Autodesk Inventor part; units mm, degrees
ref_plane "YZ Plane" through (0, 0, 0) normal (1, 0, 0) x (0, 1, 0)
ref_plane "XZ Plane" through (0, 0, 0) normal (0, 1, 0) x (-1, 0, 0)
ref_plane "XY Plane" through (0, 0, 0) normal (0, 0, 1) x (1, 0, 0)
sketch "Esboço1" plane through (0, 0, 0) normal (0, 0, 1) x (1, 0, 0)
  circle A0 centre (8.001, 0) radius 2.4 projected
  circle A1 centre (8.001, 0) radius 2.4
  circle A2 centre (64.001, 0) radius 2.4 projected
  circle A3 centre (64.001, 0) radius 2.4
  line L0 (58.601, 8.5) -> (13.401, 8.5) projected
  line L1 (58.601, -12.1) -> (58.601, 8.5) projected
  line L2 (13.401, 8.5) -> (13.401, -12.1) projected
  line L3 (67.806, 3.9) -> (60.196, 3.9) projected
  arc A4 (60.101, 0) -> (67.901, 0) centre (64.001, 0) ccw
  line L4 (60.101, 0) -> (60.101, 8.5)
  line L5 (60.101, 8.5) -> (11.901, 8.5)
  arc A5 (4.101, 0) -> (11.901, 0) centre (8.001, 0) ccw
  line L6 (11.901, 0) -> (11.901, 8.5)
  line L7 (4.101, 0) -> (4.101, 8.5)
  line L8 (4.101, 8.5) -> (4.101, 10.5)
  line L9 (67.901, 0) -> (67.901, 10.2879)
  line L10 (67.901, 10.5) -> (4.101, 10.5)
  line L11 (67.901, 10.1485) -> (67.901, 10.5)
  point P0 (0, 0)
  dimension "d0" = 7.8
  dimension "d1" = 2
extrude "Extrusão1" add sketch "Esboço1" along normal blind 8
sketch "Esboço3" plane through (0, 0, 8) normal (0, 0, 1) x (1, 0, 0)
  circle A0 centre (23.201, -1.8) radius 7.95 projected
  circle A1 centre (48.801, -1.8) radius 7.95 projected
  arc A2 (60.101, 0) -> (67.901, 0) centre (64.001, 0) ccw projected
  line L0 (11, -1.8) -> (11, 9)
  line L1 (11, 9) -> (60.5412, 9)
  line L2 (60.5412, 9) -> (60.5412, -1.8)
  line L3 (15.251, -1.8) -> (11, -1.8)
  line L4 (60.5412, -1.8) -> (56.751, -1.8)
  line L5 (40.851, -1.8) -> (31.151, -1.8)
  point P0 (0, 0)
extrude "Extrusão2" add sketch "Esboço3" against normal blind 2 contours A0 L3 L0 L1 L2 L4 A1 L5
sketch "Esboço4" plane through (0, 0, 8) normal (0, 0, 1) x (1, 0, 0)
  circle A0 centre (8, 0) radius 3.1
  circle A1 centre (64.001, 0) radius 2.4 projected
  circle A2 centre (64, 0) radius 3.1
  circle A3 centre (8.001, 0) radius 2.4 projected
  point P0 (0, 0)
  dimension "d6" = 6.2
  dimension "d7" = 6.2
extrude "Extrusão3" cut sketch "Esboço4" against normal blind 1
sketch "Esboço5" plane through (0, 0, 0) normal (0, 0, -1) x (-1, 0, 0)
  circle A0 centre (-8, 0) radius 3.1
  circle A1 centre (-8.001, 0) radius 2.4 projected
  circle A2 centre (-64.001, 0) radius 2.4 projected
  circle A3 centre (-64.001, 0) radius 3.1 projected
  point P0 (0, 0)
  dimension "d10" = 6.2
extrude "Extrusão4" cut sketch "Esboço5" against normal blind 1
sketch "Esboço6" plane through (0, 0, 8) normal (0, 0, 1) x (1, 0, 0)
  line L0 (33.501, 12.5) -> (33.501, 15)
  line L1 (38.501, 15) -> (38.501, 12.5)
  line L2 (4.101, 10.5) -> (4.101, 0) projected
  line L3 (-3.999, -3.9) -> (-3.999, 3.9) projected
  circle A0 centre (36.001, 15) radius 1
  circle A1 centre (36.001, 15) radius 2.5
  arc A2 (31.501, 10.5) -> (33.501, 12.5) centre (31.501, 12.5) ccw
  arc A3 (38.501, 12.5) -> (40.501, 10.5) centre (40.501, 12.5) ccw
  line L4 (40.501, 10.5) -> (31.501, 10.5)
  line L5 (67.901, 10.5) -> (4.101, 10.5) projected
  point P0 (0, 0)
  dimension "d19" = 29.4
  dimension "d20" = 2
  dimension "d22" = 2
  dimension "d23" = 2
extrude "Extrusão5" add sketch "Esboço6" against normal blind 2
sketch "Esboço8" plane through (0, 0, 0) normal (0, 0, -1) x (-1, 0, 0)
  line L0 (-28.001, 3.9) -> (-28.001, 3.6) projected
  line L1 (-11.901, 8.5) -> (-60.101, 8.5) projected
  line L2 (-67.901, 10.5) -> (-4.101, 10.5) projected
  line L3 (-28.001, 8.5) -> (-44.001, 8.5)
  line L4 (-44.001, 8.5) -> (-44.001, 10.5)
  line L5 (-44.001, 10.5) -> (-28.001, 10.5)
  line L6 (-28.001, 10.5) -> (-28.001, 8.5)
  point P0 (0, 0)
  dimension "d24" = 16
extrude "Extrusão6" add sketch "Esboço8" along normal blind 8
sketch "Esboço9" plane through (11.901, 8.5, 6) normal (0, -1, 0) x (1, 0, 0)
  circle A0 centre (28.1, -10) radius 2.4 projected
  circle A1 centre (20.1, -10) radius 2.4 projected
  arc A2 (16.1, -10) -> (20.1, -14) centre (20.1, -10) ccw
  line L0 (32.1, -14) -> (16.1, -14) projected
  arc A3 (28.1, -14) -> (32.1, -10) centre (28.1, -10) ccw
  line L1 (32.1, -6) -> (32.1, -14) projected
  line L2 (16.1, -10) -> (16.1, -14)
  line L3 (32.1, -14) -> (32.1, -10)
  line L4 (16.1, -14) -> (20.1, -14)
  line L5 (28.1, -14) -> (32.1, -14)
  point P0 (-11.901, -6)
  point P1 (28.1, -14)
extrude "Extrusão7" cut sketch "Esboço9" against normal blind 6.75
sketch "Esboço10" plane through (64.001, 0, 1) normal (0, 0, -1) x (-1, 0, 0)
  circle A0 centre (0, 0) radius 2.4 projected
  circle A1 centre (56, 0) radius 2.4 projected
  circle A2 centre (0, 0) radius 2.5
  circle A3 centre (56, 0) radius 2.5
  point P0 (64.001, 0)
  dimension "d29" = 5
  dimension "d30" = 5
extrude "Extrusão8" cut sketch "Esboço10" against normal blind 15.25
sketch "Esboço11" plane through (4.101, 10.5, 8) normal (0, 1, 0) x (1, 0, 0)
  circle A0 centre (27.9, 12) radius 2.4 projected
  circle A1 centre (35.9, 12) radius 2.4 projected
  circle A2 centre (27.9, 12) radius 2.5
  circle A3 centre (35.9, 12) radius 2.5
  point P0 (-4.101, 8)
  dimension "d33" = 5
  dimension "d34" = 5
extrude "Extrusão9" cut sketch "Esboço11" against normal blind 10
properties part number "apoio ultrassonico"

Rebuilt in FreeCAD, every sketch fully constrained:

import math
import FreeCAD as App
import Part
import Sketcher

V = App.Vector
Q = App.Units.Quantity

doc = App.newDocument("Part")
params = doc.addObject("Spreadsheet::Sheet", "Params")
for row, (alias, value) in enumerate([
    ("sketch1_radius", "3.9 mm"),
    ("sketch1_diameter", "4.8 mm"),
    ("sketch1_width", "48.2 mm"),
    ("sketch1_height", "8.5 mm"),
    ("pad1_length", "8 mm"),
    ("sketch2_radius", "7.95 mm"),
    ("sketch2_width", "9.7 mm"),
    ("sketch2_height", "10.8 mm"),
    ("pad2_length", "2 mm"),
    ("sketch3_diameter", "6.2 mm"),
    ("sketch3_diameter2", "4.8 mm"),
    ("pocket1_length", "1 mm"),
    ("sketch4_diameter", "6.2 mm"),
    ("sketch4_diameter2", "4.8 mm"),
    ("pocket2_length", "1 mm"),
    ("sketch5_diameter", "2 mm"),
    ("sketch5_radius", "2 mm"),
    ("sketch5_radius2", "2.5 mm"),
    ("sketch5_height", "2.5 mm"),
    ("pad3_length", "2 mm"),
    ("sketch6_width", "16 mm"),
    ("sketch6_height", "2 mm"),
    ("pad4_length", "8 mm"),
    ("sketch7_radius", "4 mm"),
    ("sketch7_diameter", "4.8 mm"),
    ("pocket3_length", "6.75 mm"),
    ("sketch8_diameter", "5 mm"),
    ("sketch8_diameter2", "4.8 mm"),
    ("pocket4_length", "15.25 mm"),
    ("sketch9_diameter", "5 mm"),
    ("sketch9_diameter2", "4.8 mm"),
    ("pocket5_length", "10 mm"),
], start=1):
    params.set(f"A{row}", alias)
    params.set(f"B{row}", "=" + value)
    params.setAlias(f"B{row}", alias)

body = doc.addObject("PartDesign::Body", "Body")

# Sketch on XY plane
sketch1 = doc.addObject("Sketcher::SketchObject", "Sketch")
body.addObject(sketch1)
sketch1.AttachmentSupport = (doc.XY_Plane, [""])
sketch1.MapMode = "FlatFace"
sketch1.addGeometry(Part.LineSegment(V(11.9, 8.5, 0), V(60.1, 8.5, 0)), False)
sketch1.addGeometry(Part.LineSegment(V(60.1, 8.5, 0), V(60.1, 0, 0)), False)
sketch1.addGeometry(Part.ArcOfCircle(Part.Circle(V(64, 0, 0), V(0, 0, 1), 3.9), math.radians(180), math.radians(360)), False)
sketch1.addGeometry(Part.LineSegment(V(67.9, 0, 0), V(67.9, 10.5, 0)), False)
sketch1.addGeometry(Part.LineSegment(V(67.9, 10.5, 0), V(4.1, 10.5, 0)), False)
sketch1.addGeometry(Part.LineSegment(V(4.1, 10.5, 0), V(4.1, 0, 0)), False)
sketch1.addGeometry(Part.ArcOfCircle(Part.Circle(V(8, 0, 0), V(0, 0, 1), 3.9), math.radians(180), math.radians(360)), False)
sketch1.addGeometry(Part.LineSegment(V(11.9, 0, 0), V(11.9, 8.5, 0)), False)
sketch1.addGeometry(Part.Circle(V(8, 0, 0), V(0, 0, 1), 2.4), False)
sketch1.addGeometry(Part.Circle(V(64, 0, 0), V(0, 0, 1), 2.4), False)
sketch1.addConstraint(Sketcher.Constraint("Coincident", 0, 2, 1, 1))
sketch1.addConstraint(Sketcher.Constraint("Tangent", 1, 2, 2, 1))
sketch1.addConstraint(Sketcher.Constraint("Tangent", 2, 2, 3, 1))
sketch1.addConstraint(Sketcher.Constraint("Coincident", 3, 2, 4, 1))
sketch1.addConstraint(Sketcher.Constraint("Coincident", 4, 2, 5, 1))
sketch1.addConstraint(Sketcher.Constraint("Tangent", 5, 2, 6, 1))
sketch1.addConstraint(Sketcher.Constraint("Tangent", 6, 2, 7, 1))
sketch1.addConstraint(Sketcher.Constraint("Coincident", 7, 2, 0, 1))
sketch1.addConstraint(Sketcher.Constraint("Horizontal", 0))
sketch1.addConstraint(Sketcher.Constraint("Vertical", 1))
sketch1.addConstraint(Sketcher.Constraint("Vertical", 3))
sketch1.addConstraint(Sketcher.Constraint("Horizontal", 4))
sketch1.addConstraint(Sketcher.Constraint("Vertical", 5))
sketch1.addConstraint(Sketcher.Constraint("Vertical", 7))
sketch1.addConstraint(Sketcher.Constraint("Coincident", 8, 3, 6, 3))
sketch1.addConstraint(Sketcher.Constraint("Coincident", 9, 3, 2, 3))
sketch1.addConstraint(Sketcher.Constraint("Equal", 2, 6))
sketch1.addConstraint(Sketcher.Constraint("Equal", 8, 9))
sketch1.addConstraint(Sketcher.Constraint("PointOnObject", 2, 3, -1))
sketch1.addConstraint(Sketcher.Constraint("PointOnObject", 6, 3, -1))
sketch1.addConstraint(Sketcher.Constraint("Radius", 2, Q("3.9 mm")))
sketch1.addConstraint(Sketcher.Constraint("DistanceY", 0, 2, 3, 2, Q("2 mm")))
sketch1.addConstraint(Sketcher.Constraint("Diameter", 8, Q("4.8 mm")))
sketch1.addConstraint(Sketcher.Constraint("DistanceX", 0, 1, 0, 2, Q("48.2 mm")))
sketch1.addConstraint(Sketcher.Constraint("DistanceY", 1, 2, 1, 1, Q("8.5 mm")))
sketch1.addConstraint(Sketcher.Constraint("DistanceX", -1, 1, 2, 3, Q("64.001 mm")))
sketch1.setExpression("Constraints[20]", "Params.sketch1_radius")
sketch1.setExpression("Constraints[22]", "Params.sketch1_diameter")
sketch1.setExpression("Constraints[23]", "Params.sketch1_width")
sketch1.setExpression("Constraints[24]", "Params.sketch1_height")
pad1 = doc.addObject("PartDesign::Pad", "Pad")
body.addObject(pad1)
pad1.Profile = sketch1
pad1.setExpression("Length", "Params.pad1_length")

# Sketch on XY plane
sketch2 = doc.addObject("Sketcher::SketchObject", "Sketch001")
body.addObject(sketch2)
sketch2.AttachmentSupport = (doc.XY_Plane, [""])
sketch2.MapMode = "FlatFace"
sketch2.AttachmentOffset = App.Placement(V(0, 0, 8), App.Rotation())
sketch2.addGeometry(Part.ArcOfCircle(Part.Circle(V(23.2, -1.8, 0), V(0, 0, 1), 8), math.radians(0), math.radians(180)), False)
sketch2.addGeometry(Part.LineSegment(V(31.2, -1.8, 0), V(40.9, -1.8, 0)), False)
sketch2.addGeometry(Part.ArcOfCircle(Part.Circle(V(48.8, -1.8, 0), V(0, 0, 1), 8), math.radians(0), math.radians(180)), False)
sketch2.addGeometry(Part.LineSegment(V(56.8, -1.8, 0), V(60.5, -1.8, 0)), False)
sketch2.addGeometry(Part.LineSegment(V(60.5, -1.8, 0), V(60.5, 9, 0)), False)
sketch2.addGeometry(Part.LineSegment(V(60.5, 9, 0), V(11, 9, 0)), False)
sketch2.addGeometry(Part.LineSegment(V(11, 9, 0), V(11, -1.8, 0)), False)
sketch2.addGeometry(Part.LineSegment(V(11, -1.8, 0), V(15.3, -1.8, 0)), False)
sketch2.addConstraint(Sketcher.Constraint("Coincident", 0, 1, 1, 1))
sketch2.addConstraint(Sketcher.Constraint("Coincident", 1, 2, 2, 2))
sketch2.addConstraint(Sketcher.Constraint("Coincident", 2, 1, 3, 1))
sketch2.addConstraint(Sketcher.Constraint("Coincident", 3, 2, 4, 1))
sketch2.addConstraint(Sketcher.Constraint("Coincident", 4, 2, 5, 1))
sketch2.addConstraint(Sketcher.Constraint("Coincident", 5, 2, 6, 1))
sketch2.addConstraint(Sketcher.Constraint("Coincident", 6, 2, 7, 1))
sketch2.addConstraint(Sketcher.Constraint("Coincident", 7, 2, 0, 2))
sketch2.addConstraint(Sketcher.Constraint("Horizontal", 1))
sketch2.addConstraint(Sketcher.Constraint("Horizontal", 3))
sketch2.addConstraint(Sketcher.Constraint("Vertical", 4))
sketch2.addConstraint(Sketcher.Constraint("Horizontal", 5))
sketch2.addConstraint(Sketcher.Constraint("Vertical", 6))
sketch2.addConstraint(Sketcher.Constraint("Horizontal", 7))
sketch2.addConstraint(Sketcher.Constraint("Equal", 0, 2))
sketch2.addConstraint(Sketcher.Constraint("Horizontal", 0, 3, 2, 3))
sketch2.addConstraint(Sketcher.Constraint("Horizontal", 2, 3, 0, 1))
sketch2.addConstraint(Sketcher.Constraint("Horizontal", 1, 2, 2, 1))
sketch2.addConstraint(Sketcher.Constraint("Horizontal", 3, 2, 6, 2))
sketch2.addConstraint(Sketcher.Constraint("Radius", 0, Q("7.95 mm")))
sketch2.addConstraint(Sketcher.Constraint("DistanceX", 1, 1, 1, 2, Q("9.7 mm")))
sketch2.addConstraint(Sketcher.Constraint("DistanceY", 4, 1, 4, 2, Q("10.8 mm")))
sketch2.addConstraint(Sketcher.Constraint("DistanceY", -1, 1, 4, 2, Q("9 mm")))
sketch2.addConstraint(Sketcher.Constraint("DistanceX", -1, 1, 5, 2, Q("11 mm")))
sketch2.addConstraint(Sketcher.Constraint("DistanceX", 7, 1, 7, 2, Q("4.251 mm")))
sketch2.addConstraint(Sketcher.Constraint("DistanceX", 3, 1, 3, 2, Q("3.7902 mm")))
sketch2.setExpression("Constraints[19]", "Params.sketch2_radius")
sketch2.setExpression("Constraints[20]", "Params.sketch2_width")
sketch2.setExpression("Constraints[21]", "Params.sketch2_height")
pad2 = doc.addObject("PartDesign::Pad", "Pad001")
body.addObject(pad2)
pad2.Profile = sketch2
pad2.setExpression("Length", "Params.pad2_length")
pad2.Reversed = True

# Sketch on XY plane
sketch3 = doc.addObject("Sketcher::SketchObject", "Sketch002")
body.addObject(sketch3)
sketch3.AttachmentSupport = (doc.XY_Plane, [""])
sketch3.MapMode = "FlatFace"
sketch3.AttachmentOffset = App.Placement(V(0, 0, 8), App.Rotation())
sketch3.addGeometry(Part.Circle(V(8, 0, 0), V(0, 0, 1), 3.1), False)
sketch3.addGeometry(Part.Circle(V(8, 0, 0), V(0, 0, 1), 2.4), False)
sketch3.addGeometry(Part.Circle(V(64, 0, 0), V(0, 0, 1), 3.1), False)
sketch3.addGeometry(Part.Circle(V(64, 0, 0), V(0, 0, 1), 2.4), False)
sketch3.addConstraint(Sketcher.Constraint("Equal", 0, 2))
sketch3.addConstraint(Sketcher.Constraint("Equal", 1, 3))
sketch3.addConstraint(Sketcher.Constraint("PointOnObject", 0, 3, -1))
sketch3.addConstraint(Sketcher.Constraint("PointOnObject", 1, 3, -1))
sketch3.addConstraint(Sketcher.Constraint("PointOnObject", 2, 3, -1))
sketch3.addConstraint(Sketcher.Constraint("PointOnObject", 3, 3, -1))
sketch3.addConstraint(Sketcher.Constraint("Diameter", 0, Q("6.2 mm")))
sketch3.addConstraint(Sketcher.Constraint("Diameter", 1, Q("4.8 mm")))
sketch3.addConstraint(Sketcher.Constraint("DistanceX", -1, 1, 0, 3, Q("8 mm")))
sketch3.addConstraint(Sketcher.Constraint("DistanceX", -1, 1, 2, 3, Q("64 mm")))
sketch3.addConstraint(Sketcher.Constraint("DistanceX", 1, 3, 3, 3, Q("56 mm")))
sketch3.addConstraint(Sketcher.Constraint("DistanceX", -1, 1, 1, 3, Q("8.001 mm")))
sketch3.setExpression("Constraints[6]", "Params.sketch3_diameter")
sketch3.setExpression("Constraints[7]", "Params.sketch3_diameter2")
pocket1 = doc.addObject("PartDesign::Pocket", "Pocket")
body.addObject(pocket1)
pocket1.Profile = sketch3
pocket1.setExpression("Length", "Params.pocket1_length")

# Sketch on XY plane
sketch4 = doc.addObject("Sketcher::SketchObject", "Sketch003")
body.addObject(sketch4)
sketch4.AttachmentSupport = (doc.XY_Plane, [""])
sketch4.MapMode = "FlatFace"
sketch4.addGeometry(Part.Circle(V(8, 0, 0), V(0, 0, 1), 3.1), False)
sketch4.addGeometry(Part.Circle(V(8, 0, 0), V(0, 0, 1), 2.4), False)
sketch4.addGeometry(Part.Circle(V(64, 0, 0), V(0, 0, 1), 3.1), False)
sketch4.addGeometry(Part.Circle(V(64, 0, 0), V(0, 0, 1), 2.4), False)
sketch4.addConstraint(Sketcher.Constraint("Coincident", 3, 3, 2, 3))
sketch4.addConstraint(Sketcher.Constraint("Equal", 0, 2))
sketch4.addConstraint(Sketcher.Constraint("Equal", 1, 3))
sketch4.addConstraint(Sketcher.Constraint("PointOnObject", 0, 3, -1))
sketch4.addConstraint(Sketcher.Constraint("PointOnObject", 1, 3, -1))
sketch4.addConstraint(Sketcher.Constraint("PointOnObject", 2, 3, -1))
sketch4.addConstraint(Sketcher.Constraint("Diameter", 0, Q("6.2 mm")))
sketch4.addConstraint(Sketcher.Constraint("Diameter", 1, Q("4.8 mm")))
sketch4.addConstraint(Sketcher.Constraint("DistanceX", -1, 1, 0, 3, Q("8 mm")))
sketch4.addConstraint(Sketcher.Constraint("DistanceX", 1, 3, 2, 3, Q("56 mm")))
sketch4.addConstraint(Sketcher.Constraint("DistanceX", -1, 1, 1, 3, Q("8.001 mm")))
sketch4.setExpression("Constraints[6]", "Params.sketch4_diameter")
sketch4.setExpression("Constraints[7]", "Params.sketch4_diameter2")
pocket2 = doc.addObject("PartDesign::Pocket", "Pocket001")
body.addObject(pocket2)
pocket2.Profile = sketch4
pocket2.setExpression("Length", "Params.pocket2_length")
pocket2.Reversed = True

# Sketch on XY plane
sketch5 = doc.addObject("Sketcher::SketchObject", "Sketch004")
body.addObject(sketch5)
sketch5.AttachmentSupport = (doc.XY_Plane, [""])
sketch5.MapMode = "FlatFace"
sketch5.AttachmentOffset = App.Placement(V(0, 0, 8), App.Rotation())
sketch5.addGeometry(Part.LineSegment(V(33.5, 15, 0), V(33.5, 12.5, 0)), False)
sketch5.addGeometry(Part.ArcOfCircle(Part.Circle(V(31.5, 12.5, 0), V(0, 0, 1), 2), math.radians(-90), math.radians(0)), False)
sketch5.addGeometry(Part.LineSegment(V(31.5, 10.5, 0), V(40.5, 10.5, 0)), False)
sketch5.addGeometry(Part.ArcOfCircle(Part.Circle(V(40.5, 12.5, 0), V(0, 0, 1), 2), math.radians(180), math.radians(270)), False)
sketch5.addGeometry(Part.LineSegment(V(38.5, 12.5, 0), V(38.5, 15, 0)), False)
sketch5.addGeometry(Part.ArcOfCircle(Part.Circle(V(36, 15, 0), V(0, 0, 1), 2.5), math.radians(0), math.radians(180)), False)
sketch5.addGeometry(Part.Circle(V(36, 15, 0), V(0, 0, 1), 1), False)
sketch5.addConstraint(Sketcher.Constraint("Tangent", 0, 2, 1, 2))
sketch5.addConstraint(Sketcher.Constraint("Tangent", 1, 1, 2, 1))
sketch5.addConstraint(Sketcher.Constraint("Tangent", 2, 2, 3, 2))
sketch5.addConstraint(Sketcher.Constraint("Tangent", 3, 1, 4, 1))
sketch5.addConstraint(Sketcher.Constraint("Tangent", 4, 2, 5, 1))
sketch5.addConstraint(Sketcher.Constraint("Tangent", 5, 2, 0, 1))
sketch5.addConstraint(Sketcher.Constraint("Vertical", 0))
sketch5.addConstraint(Sketcher.Constraint("Horizontal", 2))
sketch5.addConstraint(Sketcher.Constraint("Vertical", 4))
sketch5.addConstraint(Sketcher.Constraint("Coincident", 6, 3, 5, 3))
sketch5.addConstraint(Sketcher.Constraint("Equal", 1, 3))
sketch5.addConstraint(Sketcher.Constraint("Diameter", 6, Q("2 mm")))
sketch5.addConstraint(Sketcher.Constraint("Radius", 1, Q("2 mm")))
sketch5.addConstraint(Sketcher.Constraint("Radius", 5, Q("2.5 mm")))
sketch5.addConstraint(Sketcher.Constraint("DistanceY", 0, 2, 0, 1, Q("2.5 mm")))
sketch5.addConstraint(Sketcher.Constraint("DistanceY", -1, 1, 5, 3, Q("15 mm")))
sketch5.addConstraint(Sketcher.Constraint("DistanceX", -1, 1, 1, 3, Q("31.501 mm")))
sketch5.setExpression("Constraints[11]", "Params.sketch5_diameter")
sketch5.setExpression("Constraints[12]", "Params.sketch5_radius")
sketch5.setExpression("Constraints[13]", "Params.sketch5_radius2")
sketch5.setExpression("Constraints[14]", "Params.sketch5_height")
pad3 = doc.addObject("PartDesign::Pad", "Pad002")
body.addObject(pad3)
pad3.Profile = sketch5
pad3.setExpression("Length", "Params.pad3_length")
pad3.Reversed = True

# Sketch on XY plane
sketch6 = doc.addObject("Sketcher::SketchObject", "Sketch005")
body.addObject(sketch6)
sketch6.AttachmentSupport = (doc.XY_Plane, [""])
sketch6.MapMode = "FlatFace"
sketch6.addGeometry(Part.LineSegment(V(44, 8.5, 0), V(28, 8.5, 0)), False)
sketch6.addGeometry(Part.LineSegment(V(28, 8.5, 0), V(28, 10.5, 0)), False)
sketch6.addGeometry(Part.LineSegment(V(28, 10.5, 0), V(44, 10.5, 0)), False)
sketch6.addGeometry(Part.LineSegment(V(44, 10.5, 0), V(44, 8.5, 0)), False)
sketch6.addConstraint(Sketcher.Constraint("Coincident", 0, 2, 1, 1))
sketch6.addConstraint(Sketcher.Constraint("Coincident", 1, 2, 2, 1))
sketch6.addConstraint(Sketcher.Constraint("Coincident", 2, 2, 3, 1))
sketch6.addConstraint(Sketcher.Constraint("Coincident", 3, 2, 0, 1))
sketch6.addConstraint(Sketcher.Constraint("Horizontal", 0))
sketch6.addConstraint(Sketcher.Constraint("Vertical", 1))
sketch6.addConstraint(Sketcher.Constraint("Horizontal", 2))
sketch6.addConstraint(Sketcher.Constraint("Vertical", 3))
sketch6.addConstraint(Sketcher.Constraint("DistanceX", 0, 2, 0, 1, Q("16 mm")))
sketch6.addConstraint(Sketcher.Constraint("DistanceY", 1, 1, 1, 2, Q("2 mm")))
sketch6.addConstraint(Sketcher.Constraint("DistanceY", -1, 1, 0, 2, Q("8.5 mm")))
sketch6.addConstraint(Sketcher.Constraint("DistanceX", -1, 1, 0, 2, Q("28.001 mm")))
sketch6.setExpression("Constraints[8]", "Params.sketch6_width")
sketch6.setExpression("Constraints[9]", "Params.sketch6_height")
pad4 = doc.addObject("PartDesign::Pad", "Pad003")
body.addObject(pad4)
pad4.Profile = sketch6
pad4.setExpression("Length", "Params.pad4_length")
pad4.Reversed = True

# Sketch on XZ plane
sketch7 = doc.addObject("Sketcher::SketchObject", "Sketch006")
body.addObject(sketch7)
sketch7.AttachmentSupport = (doc.XZ_Plane, [""])
sketch7.MapMode = "FlatFace"
sketch7.AttachmentOffset = App.Placement(V(0, 0, -8.5), App.Rotation())
sketch7.addGeometry(Part.Circle(V(40, -4, 0), V(0, 0, 1), 2.4), False)
sketch7.addGeometry(Part.Circle(V(32, -4, 0), V(0, 0, 1), 2.4), False)
sketch7.addGeometry(Part.ArcOfCircle(Part.Circle(V(40, -4, 0), V(0, 0, 1), 4), math.radians(-90), math.radians(0)), False)
sketch7.addGeometry(Part.LineSegment(V(40, -8, 0), V(44, -8, 0)), False)
sketch7.addGeometry(Part.LineSegment(V(44, -8, 0), V(44, -4, 0)), False)
sketch7.addGeometry(Part.ArcOfCircle(Part.Circle(V(32, -4, 0), V(0, 0, 1), 4), math.radians(180), math.radians(270)), False)
sketch7.addGeometry(Part.LineSegment(V(28, -4, 0), V(28, -8, 0)), False)
sketch7.addGeometry(Part.LineSegment(V(28, -8, 0), V(32, -8, 0)), False)
sketch7.addConstraint(Sketcher.Constraint("Tangent", 2, 1, 3, 1))
sketch7.addConstraint(Sketcher.Constraint("Coincident", 3, 2, 4, 1))
sketch7.addConstraint(Sketcher.Constraint("Tangent", 4, 2, 2, 2))
sketch7.addConstraint(Sketcher.Constraint("Tangent", 5, 1, 6, 1))
sketch7.addConstraint(Sketcher.Constraint("Coincident", 6, 2, 7, 1))
sketch7.addConstraint(Sketcher.Constraint("Tangent", 7, 2, 5, 2))
sketch7.addConstraint(Sketcher.Constraint("Horizontal", 3))
sketch7.addConstraint(Sketcher.Constraint("Vertical", 4))
sketch7.addConstraint(Sketcher.Constraint("Vertical", 6))
sketch7.addConstraint(Sketcher.Constraint("Horizontal", 7))
sketch7.addConstraint(Sketcher.Constraint("Coincident", 2, 3, 0, 3))
sketch7.addConstraint(Sketcher.Constraint("Coincident", 5, 3, 1, 3))
sketch7.addConstraint(Sketcher.Constraint("Equal", 0, 1))
sketch7.addConstraint(Sketcher.Constraint("Equal", 2, 5))
sketch7.addConstraint(Sketcher.Constraint("Horizontal", 0, 3, 1, 3))
sketch7.addConstraint(Sketcher.Constraint("Radius", 2, Q("4 mm")))
sketch7.addConstraint(Sketcher.Constraint("Diameter", 0, Q("4.8 mm")))
sketch7.addConstraint(Sketcher.Constraint("DistanceY", 0, 3, -1, 1, Q("4 mm")))
sketch7.addConstraint(Sketcher.Constraint("DistanceX", 1, 3, 0, 3, Q("8 mm")))
sketch7.addConstraint(Sketcher.Constraint("DistanceX", -1, 1, 0, 3, Q("40.001 mm")))
sketch7.setExpression("Constraints[15]", "Params.sketch7_radius")
sketch7.setExpression("Constraints[16]", "Params.sketch7_diameter")
pocket3 = doc.addObject("PartDesign::Pocket", "Pocket002")
body.addObject(pocket3)
pocket3.Profile = sketch7
pocket3.setExpression("Length", "Params.pocket3_length")

# Sketch on XY plane
sketch8 = doc.addObject("Sketcher::SketchObject", "Sketch007")
body.addObject(sketch8)
sketch8.AttachmentSupport = (doc.XY_Plane, [""])
sketch8.MapMode = "FlatFace"
sketch8.AttachmentOffset = App.Placement(V(0, 0, 1), App.Rotation())
sketch8.addGeometry(Part.Circle(V(64, 0, 0), V(0, 0, 1), 2.5), False)
sketch8.addGeometry(Part.Circle(V(64, 0, 0), V(0, 0, 1), 2.4), False)
sketch8.addGeometry(Part.Circle(V(8, 0, 0), V(0, 0, 1), 2.5), False)
sketch8.addGeometry(Part.Circle(V(8, 0, 0), V(0, 0, 1), 2.4), False)
sketch8.addConstraint(Sketcher.Constraint("Coincident", 1, 3, 0, 3))
sketch8.addConstraint(Sketcher.Constraint("Coincident", 3, 3, 2, 3))
sketch8.addConstraint(Sketcher.Constraint("Equal", 0, 2))
sketch8.addConstraint(Sketcher.Constraint("Equal", 1, 3))
sketch8.addConstraint(Sketcher.Constraint("PointOnObject", 0, 3, -1))
sketch8.addConstraint(Sketcher.Constraint("PointOnObject", 2, 3, -1))
sketch8.addConstraint(Sketcher.Constraint("Diameter", 0, Q("5 mm")))
sketch8.addConstraint(Sketcher.Constraint("Diameter", 1, Q("4.8 mm")))
sketch8.addConstraint(Sketcher.Constraint("DistanceX", 2, 3, 0, 3, Q("56 mm")))
sketch8.addConstraint(Sketcher.Constraint("DistanceX", -1, 1, 0, 3, Q("64.001 mm")))
sketch8.setExpression("Constraints[6]", "Params.sketch8_diameter")
sketch8.setExpression("Constraints[7]", "Params.sketch8_diameter2")
pocket4 = doc.addObject("PartDesign::Pocket", "Pocket003")
body.addObject(pocket4)
pocket4.Profile = sketch8
pocket4.setExpression("Length", "Params.pocket4_length")
pocket4.Reversed = True

# Sketch on XZ plane
sketch9 = doc.addObject("Sketcher::SketchObject", "Sketch008")
body.addObject(sketch9)
sketch9.AttachmentSupport = (doc.XZ_Plane, [""])
sketch9.MapMode = "FlatFace"
sketch9.AttachmentOffset = App.Placement(V(0, 0, -10.5), App.Rotation())
sketch9.addGeometry(Part.Circle(V(32, -4, 0), V(0, 0, 1), 2.5), False)
sketch9.addGeometry(Part.Circle(V(32, -4, 0), V(0, 0, 1), 2.4), False)
sketch9.addGeometry(Part.Circle(V(40, -4, 0), V(0, 0, 1), 2.5), False)
sketch9.addGeometry(Part.Circle(V(40, -4, 0), V(0, 0, 1), 2.4), False)
sketch9.addConstraint(Sketcher.Constraint("Coincident", 1, 3, 0, 3))
sketch9.addConstraint(Sketcher.Constraint("Coincident", 3, 3, 2, 3))
sketch9.addConstraint(Sketcher.Constraint("Equal", 0, 2))
sketch9.addConstraint(Sketcher.Constraint("Equal", 1, 3))
sketch9.addConstraint(Sketcher.Constraint("Horizontal", 1, 3, 2, 3))
sketch9.addConstraint(Sketcher.Constraint("Diameter", 0, Q("5 mm")))
sketch9.addConstraint(Sketcher.Constraint("Diameter", 1, Q("4.8 mm")))
sketch9.addConstraint(Sketcher.Constraint("DistanceY", 0, 3, -1, 1, Q("4 mm")))
sketch9.addConstraint(Sketcher.Constraint("DistanceX", 0, 3, 2, 3, Q("8 mm")))
sketch9.addConstraint(Sketcher.Constraint("DistanceX", -1, 1, 0, 3, Q("32.001 mm")))
sketch9.setExpression("Constraints[5]", "Params.sketch9_diameter")
sketch9.setExpression("Constraints[6]", "Params.sketch9_diameter2")
pocket5 = doc.addObject("PartDesign::Pocket", "Pocket004")
body.addObject(pocket5)
pocket5.Profile = sketch9
pocket5.setExpression("Length", "Params.pocket5_length")
pocket5.Reversed = True

doc.recompute()
